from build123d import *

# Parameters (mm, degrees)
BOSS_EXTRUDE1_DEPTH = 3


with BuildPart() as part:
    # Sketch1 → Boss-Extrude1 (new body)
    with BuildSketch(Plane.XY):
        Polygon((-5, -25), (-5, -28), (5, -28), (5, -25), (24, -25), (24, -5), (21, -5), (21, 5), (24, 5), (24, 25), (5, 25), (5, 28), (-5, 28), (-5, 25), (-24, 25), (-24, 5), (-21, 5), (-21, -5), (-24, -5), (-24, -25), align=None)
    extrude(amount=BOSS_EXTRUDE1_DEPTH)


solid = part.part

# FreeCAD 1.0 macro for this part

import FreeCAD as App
import Part
import Sketcher
from FreeCAD import Vector
Q = App.Units.Quantity


def add_polygon(sketch, points):
    """Adds a closed chain of lines whose ends are joined by coincident constraints."""
    first, n = sketch.GeometryCount, len(points)
    for a, b in zip(points, points[1:] + points[:1]):
        sketch.addGeometry(Part.LineSegment(App.Vector(*a, 0), App.Vector(*b, 0)), False)
    for i in range(n):
        sketch.addConstraint(Sketcher.Constraint("Coincident", first + i, 2, first + (i + 1) % n, 1))

doc = App.newDocument("Part")
body = doc.addObject("PartDesign::Body", "Body")

# Sketch on XY plane
sketch1 = body.newObject("Sketcher::SketchObject", "Sketch")
sketch1.AttachmentSupport = (doc.getObject("XY_Plane"), [""])
sketch1.MapMode = "FlatFace"
add_polygon(sketch1, [(-5, -25), (-5, -28), (5, -28), (5, -25), (24, -25), (24, -5), (21, -5), (21, 5), (24, 5), (24, 25), (5, 25), (5, 28), (-5, 28), (-5, 25), (-24, 25), (-24, 5), (-21, 5), (-21, -5), (-24, -5), (-24, -25)])  # lines 0-19
sketch1.addConstraint(Sketcher.Constraint("Vertical", 0))
sketch1.addConstraint(Sketcher.Constraint("Horizontal", 1))
sketch1.addConstraint(Sketcher.Constraint("Vertical", 2))
sketch1.addConstraint(Sketcher.Constraint("Horizontal", 3))
sketch1.addConstraint(Sketcher.Constraint("Vertical", 4))
sketch1.addConstraint(Sketcher.Constraint("Horizontal", 5))
sketch1.addConstraint(Sketcher.Constraint("Vertical", 6))
sketch1.addConstraint(Sketcher.Constraint("Horizontal", 7))
sketch1.addConstraint(Sketcher.Constraint("Vertical", 8))
sketch1.addConstraint(Sketcher.Constraint("Horizontal", 9))
sketch1.addConstraint(Sketcher.Constraint("Vertical", 10))
sketch1.addConstraint(Sketcher.Constraint("Horizontal", 11))
sketch1.addConstraint(Sketcher.Constraint("Vertical", 12))
sketch1.addConstraint(Sketcher.Constraint("Horizontal", 13))
sketch1.addConstraint(Sketcher.Constraint("Vertical", 14))
sketch1.addConstraint(Sketcher.Constraint("Horizontal", 15))
sketch1.addConstraint(Sketcher.Constraint("Vertical", 16))
sketch1.addConstraint(Sketcher.Constraint("Horizontal", 17))
sketch1.addConstraint(Sketcher.Constraint("Vertical", 18))
sketch1.addConstraint(Sketcher.Constraint("Horizontal", 19))
sketch1.addConstraint(Sketcher.Constraint("Symmetric", 0, 2, 10, 2, -1, 1))
sketch1.addConstraint(Sketcher.Constraint("Symmetric", 2, 2, 12, 2, -1, 1))
sketch1.addConstraint(Sketcher.Constraint("Symmetric", 4, 2, 14, 2, -1, 1))
sketch1.addConstraint(Sketcher.Constraint("Symmetric", 6, 2, 16, 2, -1, 1))
sketch1.addConstraint(Sketcher.Constraint("Symmetric", 8, 2, 18, 2, -1, 1))
sketch1.addConstraint(Sketcher.Constraint("Symmetric", 9, 2, 12, 2, -2))
sketch1.addConstraint(Sketcher.Constraint("Symmetric", 7, 2, 14, 2, -2))
sketch1.addConstraint(Sketcher.Constraint("Equal", 17, 0))
sketch1.addConstraint(Sketcher.Constraint("Equal", 11, 6))
sketch1.addConstraint(Sketcher.Constraint("DistanceX", 1, 1, 1, 2, Q("10 mm")))
sketch1.addConstraint(Sketcher.Constraint("DistanceX", 3, 1, 3, 2, Q("19 mm")))
sketch1.addConstraint(Sketcher.Constraint("DistanceX", 5, 2, 5, 1, Q("3 mm")))
sketch1.addConstraint(Sketcher.Constraint("DistanceY", 4, 1, 4, 2, Q("20 mm")))
pad1 = body.newObject("PartDesign::Pad", "Pad")
pad1.Profile = sketch1
pad1.Length = 3

doc.recompute()
